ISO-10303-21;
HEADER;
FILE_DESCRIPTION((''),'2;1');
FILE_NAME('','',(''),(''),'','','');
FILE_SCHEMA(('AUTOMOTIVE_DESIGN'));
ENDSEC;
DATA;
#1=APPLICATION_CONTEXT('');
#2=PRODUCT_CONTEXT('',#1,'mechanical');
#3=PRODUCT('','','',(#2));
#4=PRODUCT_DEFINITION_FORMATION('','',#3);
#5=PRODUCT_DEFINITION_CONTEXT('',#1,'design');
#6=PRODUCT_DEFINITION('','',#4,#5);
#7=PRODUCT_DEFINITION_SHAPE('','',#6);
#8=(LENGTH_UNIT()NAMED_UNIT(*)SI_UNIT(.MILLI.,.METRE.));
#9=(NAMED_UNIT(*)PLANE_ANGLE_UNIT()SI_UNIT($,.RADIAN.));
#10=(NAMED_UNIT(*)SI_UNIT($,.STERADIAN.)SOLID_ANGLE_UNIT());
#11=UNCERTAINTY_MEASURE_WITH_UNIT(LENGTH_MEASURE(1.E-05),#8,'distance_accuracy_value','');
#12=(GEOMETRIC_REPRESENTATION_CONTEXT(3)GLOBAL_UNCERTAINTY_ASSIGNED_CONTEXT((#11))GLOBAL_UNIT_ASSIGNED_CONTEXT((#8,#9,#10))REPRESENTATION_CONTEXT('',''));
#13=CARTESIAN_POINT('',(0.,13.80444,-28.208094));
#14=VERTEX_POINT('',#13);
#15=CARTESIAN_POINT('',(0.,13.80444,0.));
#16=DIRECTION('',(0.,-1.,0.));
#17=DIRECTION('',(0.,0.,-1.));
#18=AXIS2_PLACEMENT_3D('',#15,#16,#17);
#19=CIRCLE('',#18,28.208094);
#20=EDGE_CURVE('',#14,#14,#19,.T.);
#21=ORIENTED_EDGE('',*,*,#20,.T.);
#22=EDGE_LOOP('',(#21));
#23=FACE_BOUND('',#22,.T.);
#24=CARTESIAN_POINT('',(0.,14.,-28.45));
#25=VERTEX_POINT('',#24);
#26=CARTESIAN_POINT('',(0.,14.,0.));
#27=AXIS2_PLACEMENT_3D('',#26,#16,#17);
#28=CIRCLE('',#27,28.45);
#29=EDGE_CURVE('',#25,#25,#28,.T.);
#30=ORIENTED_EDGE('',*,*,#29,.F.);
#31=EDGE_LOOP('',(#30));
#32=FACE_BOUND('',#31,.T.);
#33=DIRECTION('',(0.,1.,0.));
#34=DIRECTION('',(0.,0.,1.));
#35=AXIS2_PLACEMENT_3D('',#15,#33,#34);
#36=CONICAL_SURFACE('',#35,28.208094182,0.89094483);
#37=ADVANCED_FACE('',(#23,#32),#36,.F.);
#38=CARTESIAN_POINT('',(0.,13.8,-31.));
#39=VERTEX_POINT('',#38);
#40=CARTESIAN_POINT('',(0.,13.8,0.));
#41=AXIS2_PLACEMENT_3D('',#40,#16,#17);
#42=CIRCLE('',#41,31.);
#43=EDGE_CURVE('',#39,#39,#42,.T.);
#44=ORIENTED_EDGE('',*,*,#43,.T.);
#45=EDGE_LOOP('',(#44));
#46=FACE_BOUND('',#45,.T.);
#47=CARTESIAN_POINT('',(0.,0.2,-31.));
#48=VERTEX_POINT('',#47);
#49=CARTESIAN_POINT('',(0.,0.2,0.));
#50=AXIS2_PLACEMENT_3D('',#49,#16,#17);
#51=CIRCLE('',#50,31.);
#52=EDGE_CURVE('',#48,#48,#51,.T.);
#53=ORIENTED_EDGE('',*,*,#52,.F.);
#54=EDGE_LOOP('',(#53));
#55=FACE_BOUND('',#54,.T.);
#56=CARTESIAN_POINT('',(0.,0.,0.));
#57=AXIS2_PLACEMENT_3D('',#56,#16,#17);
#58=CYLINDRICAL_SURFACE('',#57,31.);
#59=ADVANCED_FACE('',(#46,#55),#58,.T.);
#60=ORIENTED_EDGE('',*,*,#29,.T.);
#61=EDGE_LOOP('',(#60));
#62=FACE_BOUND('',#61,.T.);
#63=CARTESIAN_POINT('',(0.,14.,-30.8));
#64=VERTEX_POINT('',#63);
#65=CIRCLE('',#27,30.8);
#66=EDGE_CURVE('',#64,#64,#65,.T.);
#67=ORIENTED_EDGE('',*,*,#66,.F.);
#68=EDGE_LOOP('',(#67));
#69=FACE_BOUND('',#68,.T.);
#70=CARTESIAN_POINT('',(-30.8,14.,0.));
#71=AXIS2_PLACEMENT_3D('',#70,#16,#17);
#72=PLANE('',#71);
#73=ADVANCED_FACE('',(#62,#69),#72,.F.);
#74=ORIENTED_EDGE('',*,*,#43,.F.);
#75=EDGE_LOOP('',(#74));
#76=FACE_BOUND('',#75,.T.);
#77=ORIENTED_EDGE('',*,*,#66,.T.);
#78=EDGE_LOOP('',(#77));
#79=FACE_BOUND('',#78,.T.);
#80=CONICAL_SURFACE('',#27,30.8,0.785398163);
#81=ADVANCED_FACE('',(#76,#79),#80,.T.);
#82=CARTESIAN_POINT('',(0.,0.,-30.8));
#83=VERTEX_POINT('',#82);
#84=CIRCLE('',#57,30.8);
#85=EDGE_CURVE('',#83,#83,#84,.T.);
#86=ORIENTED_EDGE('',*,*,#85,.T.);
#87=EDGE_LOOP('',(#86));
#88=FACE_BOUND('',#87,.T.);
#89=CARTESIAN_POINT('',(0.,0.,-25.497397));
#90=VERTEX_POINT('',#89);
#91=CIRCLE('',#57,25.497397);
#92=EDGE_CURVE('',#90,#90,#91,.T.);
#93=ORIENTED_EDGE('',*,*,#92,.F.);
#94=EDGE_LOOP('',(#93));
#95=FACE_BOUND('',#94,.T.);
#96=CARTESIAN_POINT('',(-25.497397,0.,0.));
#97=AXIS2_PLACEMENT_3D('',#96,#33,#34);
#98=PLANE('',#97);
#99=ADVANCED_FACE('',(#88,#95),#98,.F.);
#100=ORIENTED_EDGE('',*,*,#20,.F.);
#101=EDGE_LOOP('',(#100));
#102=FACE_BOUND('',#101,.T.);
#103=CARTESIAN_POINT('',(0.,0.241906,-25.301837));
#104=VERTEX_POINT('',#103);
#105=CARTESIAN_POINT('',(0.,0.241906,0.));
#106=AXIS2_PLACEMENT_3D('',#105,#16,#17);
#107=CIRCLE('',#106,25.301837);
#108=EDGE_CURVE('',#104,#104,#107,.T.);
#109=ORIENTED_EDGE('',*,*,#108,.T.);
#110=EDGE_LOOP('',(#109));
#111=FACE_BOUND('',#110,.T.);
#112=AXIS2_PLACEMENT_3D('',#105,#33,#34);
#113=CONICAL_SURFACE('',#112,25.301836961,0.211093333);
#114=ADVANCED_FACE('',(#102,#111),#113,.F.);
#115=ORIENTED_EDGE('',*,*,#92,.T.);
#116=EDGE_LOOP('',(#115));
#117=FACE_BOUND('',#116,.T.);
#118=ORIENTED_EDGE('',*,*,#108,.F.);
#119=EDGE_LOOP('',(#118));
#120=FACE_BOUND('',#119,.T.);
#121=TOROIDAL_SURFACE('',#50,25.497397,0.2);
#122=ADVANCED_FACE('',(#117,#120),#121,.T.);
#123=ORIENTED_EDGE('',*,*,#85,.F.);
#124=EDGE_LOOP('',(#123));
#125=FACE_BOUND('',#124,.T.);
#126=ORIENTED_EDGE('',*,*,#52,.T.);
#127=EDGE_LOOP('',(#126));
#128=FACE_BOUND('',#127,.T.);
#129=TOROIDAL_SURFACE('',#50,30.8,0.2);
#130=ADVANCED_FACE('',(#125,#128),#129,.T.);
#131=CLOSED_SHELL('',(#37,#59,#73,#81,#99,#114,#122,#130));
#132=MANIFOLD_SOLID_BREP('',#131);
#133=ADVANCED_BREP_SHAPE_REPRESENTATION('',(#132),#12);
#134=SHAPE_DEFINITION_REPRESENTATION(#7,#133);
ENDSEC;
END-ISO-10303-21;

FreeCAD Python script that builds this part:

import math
import FreeCAD as App
import Part
import Sketcher
from FreeCAD import Vector

doc = App.newDocument("Part")
body = doc.addObject("PartDesign::Body", "Body")

sketch1 = body.newObject("Sketcher::SketchObject", "Sketch")
sketch1.AttachmentSupport = (doc.getObject("XY_Plane"), [""])
sketch1.MapMode = "FlatFace"
sketch1.addGeometry(Part.LineSegment(Vector(-30.8, 0, 0), Vector(-25.497397, 0, 0)), False)
sketch1.addGeometry(Part.ArcOfCircle(Part.Circle(Vector(-25.497397, 0.2, 0), Vector(0, 0, 1), 0.2), math.radians(-90), math.radians(12.094757)), False)
sketch1.addGeometry(Part.LineSegment(Vector(-25.301837, 0.241906, 0), Vector(-28.208094, 13.80444, 0)), False)
sketch1.addGeometry(Part.LineSegment(Vector(-28.208094, 13.80444, 0), Vector(-28.45, 14, 0)), False)
sketch1.addGeometry(Part.LineSegment(Vector(-28.45, 14, 0), Vector(-30.8, 14, 0)), False)
sketch1.addGeometry(Part.LineSegment(Vector(-30.8, 14, 0), Vector(-31, 13.8, 0)), False)
sketch1.addGeometry(Part.LineSegment(Vector(-31, 13.8, 0), Vector(-31, 0.2, 0)), False)
sketch1.addGeometry(Part.ArcOfCircle(Part.Circle(Vector(-30.8, 0.2, 0), Vector(0, 0, 1), 0.2), math.radians(-180), math.radians(-90)), False)
sketch1.addConstraint(Sketcher.Constraint("Coincident", 0, 2, 1, 1))
sketch1.addConstraint(Sketcher.Constraint("Coincident", 1, 2, 2, 1))
sketch1.addConstraint(Sketcher.Constraint("Coincident", 2, 2, 3, 1))
sketch1.addConstraint(Sketcher.Constraint("Coincident", 3, 2, 4, 1))
sketch1.addConstraint(Sketcher.Constraint("Coincident", 4, 2, 5, 1))
sketch1.addConstraint(Sketcher.Constraint("Coincident", 5, 2, 6, 1))
sketch1.addConstraint(Sketcher.Constraint("Coincident", 6, 2, 7, 1))
sketch1.addConstraint(Sketcher.Constraint("Coincident", 7, 2, 0, 1))
sketch1.addConstraint(Sketcher.Constraint("Horizontal", 0))
sketch1.addConstraint(Sketcher.Constraint("Horizontal", 4))
sketch1.addConstraint(Sketcher.Constraint("Vertical", 6))
sketch1.addConstraint(Sketcher.Constraint("PointOnObject", 0, 2, -1))
sketch1.addConstraint(Sketcher.Constraint("Radius", 1, 0.2))
sketch1.addConstraint(Sketcher.Constraint("Radius", 7, 0.2))
sketch1.addConstraint(Sketcher.Constraint("DistanceY", 6, 2, 6, 1, 13.6))
sketch1.addConstraint(Sketcher.Constraint("DistanceY", -1, 1, 3, 2, 14.0))
sketch1.addConstraint(Sketcher.Constraint("DistanceX", 5, 2, -1, 1, 31.0))
sketch1.addConstraint(Sketcher.Constraint("DistanceX", 4, 2, 4, 1, 2.35))
sketch1.addConstraint(Sketcher.Constraint("DistanceX", 4, 2, -1, 1, 30.8))
sketch1.addConstraint(Sketcher.Constraint("DistanceY", -1, 1, 5, 2, 13.8))
sketch1.addConstraint(Sketcher.Constraint("DistanceX", 7, 2, -1, 1, 30.8))
sketch1.addConstraint(Sketcher.Constraint("DistanceX", 0, 1, 0, 2, 5.302603))
sketch1.addConstraint(Sketcher.Constraint("DistanceY", -1, 1, 2, 2, 13.80444))
sketch1.addConstraint(Sketcher.Constraint("DistanceX", 1, 3, 1, 2, 0.19556))
sketch1.addConstraint(Sketcher.Constraint("DistanceX", 0, 2, 1, 2, 0.19556))
sketch1.addConstraint(Sketcher.Constraint("Distance", 2, 13.870424))
revolution = body.newObject("PartDesign::Revolution", "Revolution")
revolution.Profile = sketch1
revolution.ReferenceAxis = (sketch1, ["V_Axis"])
revolution.Angle = 360

doc.recompute()
